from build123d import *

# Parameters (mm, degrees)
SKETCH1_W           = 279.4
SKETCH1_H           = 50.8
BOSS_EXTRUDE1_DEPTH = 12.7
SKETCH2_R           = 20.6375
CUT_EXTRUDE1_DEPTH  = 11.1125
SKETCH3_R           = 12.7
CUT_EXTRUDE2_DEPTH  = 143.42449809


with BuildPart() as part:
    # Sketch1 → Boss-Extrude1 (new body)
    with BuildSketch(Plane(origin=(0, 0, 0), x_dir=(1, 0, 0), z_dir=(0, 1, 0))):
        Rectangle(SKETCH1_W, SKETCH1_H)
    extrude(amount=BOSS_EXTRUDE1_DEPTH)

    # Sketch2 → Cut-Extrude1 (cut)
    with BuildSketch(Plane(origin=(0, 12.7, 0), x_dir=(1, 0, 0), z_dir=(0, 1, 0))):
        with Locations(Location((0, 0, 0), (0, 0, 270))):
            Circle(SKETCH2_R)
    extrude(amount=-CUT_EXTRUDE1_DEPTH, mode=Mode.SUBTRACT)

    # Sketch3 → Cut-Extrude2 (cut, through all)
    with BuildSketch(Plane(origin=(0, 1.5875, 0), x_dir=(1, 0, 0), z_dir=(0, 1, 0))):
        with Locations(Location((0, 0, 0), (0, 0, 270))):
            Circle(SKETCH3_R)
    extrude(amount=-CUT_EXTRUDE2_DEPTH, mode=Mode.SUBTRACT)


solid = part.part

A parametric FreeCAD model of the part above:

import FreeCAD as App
import Part
import Sketcher
from FreeCAD import Vector
Q = App.Units.Quantity


def add_polygon(sketch, points):
    """Adds a closed chain of lines whose ends are joined by coincident constraints."""
    first, n = sketch.GeometryCount, len(points)
    for a, b in zip(points, points[1:] + points[:1]):
        sketch.addGeometry(Part.LineSegment(App.Vector(*a, 0), App.Vector(*b, 0)), False)
    for i in range(n):
        sketch.addConstraint(Sketcher.Constraint("Coincident", first + i, 2, first + (i + 1) % n, 1))

doc = App.newDocument("Part")
body = doc.addObject("PartDesign::Body", "Body")

# Sketch on XZ plane
sketch1 = body.newObject("Sketcher::SketchObject", "Sketch")
sketch1.AttachmentSupport = (doc.getObject("XZ_Plane"), [""])
sketch1.MapMode = "FlatFace"
add_polygon(sketch1, [(-140, -25), (-140, 25), (140, 25), (140, -25)])  # lines 0-3
sketch1.addConstraint([
    Sketcher.Constraint("Vertical", 0),
    Sketcher.Constraint("Horizontal", 1),
    Sketcher.Constraint("Vertical", 2),
    Sketcher.Constraint("Horizontal", 3),
    Sketcher.Constraint("Symmetric", 0, 2, 2, 2, -1, 1),
    Sketcher.Constraint("DistanceX", 1, 1, 1, 2, Q("11 in")),
    Sketcher.Constraint("DistanceY", 0, 1, 0, 2, Q("2 in")),
])
pad1 = body.newObject("PartDesign::Pad", "Pad")
pad1.Profile = sketch1
pad1.Length = Q("0.5 in")
pad1.Reversed = True

# Sketch on XZ plane
sketch2 = body.newObject("Sketcher::SketchObject", "Sketch001")
sketch2.AttachmentSupport = (doc.getObject("XZ_Plane"), [""])
sketch2.MapMode = "FlatFace"
sketch2.AttachmentOffset = App.Placement(Vector(0, 0, -0.5 * 25.4), App.Rotation())
sketch2.addGeometry(Part.Circle(Vector(0, 0, 0), Vector(0, 0, 1), 21), False)
sketch2.addConstraint([
    Sketcher.Constraint("Coincident", 0, 3, -1, 1),
    Sketcher.Constraint("Diameter", 0, Q("1.625 in")),
])
pocket1 = body.newObject("PartDesign::Pocket", "Pocket")
pocket1.Profile = sketch2
pocket1.Length = Q("0.4375 in")
pocket1.Reversed = True

# Sketch on XZ plane
sketch3 = body.newObject("Sketcher::SketchObject", "Sketch002")
sketch3.AttachmentSupport = (doc.getObject("XZ_Plane"), [""])
sketch3.MapMode = "FlatFace"
sketch3.AttachmentOffset = App.Placement(Vector(0, 0, -0.0625 * 25.4), App.Rotation())
sketch3.addGeometry(Part.Circle(Vector(0, 0, 0), Vector(0, 0, 1), 13), False)
sketch3.addConstraint([
    Sketcher.Constraint("Coincident", 0, 3, -1, 1),
    Sketcher.Constraint("Diameter", 0, Q("1 in")),
])
pocket2 = body.newObject("PartDesign::Pocket", "Pocket001")
pocket2.Profile = sketch3
pocket2.Type = "ThroughAll"
pocket2.Reversed = True

doc.recompute()
